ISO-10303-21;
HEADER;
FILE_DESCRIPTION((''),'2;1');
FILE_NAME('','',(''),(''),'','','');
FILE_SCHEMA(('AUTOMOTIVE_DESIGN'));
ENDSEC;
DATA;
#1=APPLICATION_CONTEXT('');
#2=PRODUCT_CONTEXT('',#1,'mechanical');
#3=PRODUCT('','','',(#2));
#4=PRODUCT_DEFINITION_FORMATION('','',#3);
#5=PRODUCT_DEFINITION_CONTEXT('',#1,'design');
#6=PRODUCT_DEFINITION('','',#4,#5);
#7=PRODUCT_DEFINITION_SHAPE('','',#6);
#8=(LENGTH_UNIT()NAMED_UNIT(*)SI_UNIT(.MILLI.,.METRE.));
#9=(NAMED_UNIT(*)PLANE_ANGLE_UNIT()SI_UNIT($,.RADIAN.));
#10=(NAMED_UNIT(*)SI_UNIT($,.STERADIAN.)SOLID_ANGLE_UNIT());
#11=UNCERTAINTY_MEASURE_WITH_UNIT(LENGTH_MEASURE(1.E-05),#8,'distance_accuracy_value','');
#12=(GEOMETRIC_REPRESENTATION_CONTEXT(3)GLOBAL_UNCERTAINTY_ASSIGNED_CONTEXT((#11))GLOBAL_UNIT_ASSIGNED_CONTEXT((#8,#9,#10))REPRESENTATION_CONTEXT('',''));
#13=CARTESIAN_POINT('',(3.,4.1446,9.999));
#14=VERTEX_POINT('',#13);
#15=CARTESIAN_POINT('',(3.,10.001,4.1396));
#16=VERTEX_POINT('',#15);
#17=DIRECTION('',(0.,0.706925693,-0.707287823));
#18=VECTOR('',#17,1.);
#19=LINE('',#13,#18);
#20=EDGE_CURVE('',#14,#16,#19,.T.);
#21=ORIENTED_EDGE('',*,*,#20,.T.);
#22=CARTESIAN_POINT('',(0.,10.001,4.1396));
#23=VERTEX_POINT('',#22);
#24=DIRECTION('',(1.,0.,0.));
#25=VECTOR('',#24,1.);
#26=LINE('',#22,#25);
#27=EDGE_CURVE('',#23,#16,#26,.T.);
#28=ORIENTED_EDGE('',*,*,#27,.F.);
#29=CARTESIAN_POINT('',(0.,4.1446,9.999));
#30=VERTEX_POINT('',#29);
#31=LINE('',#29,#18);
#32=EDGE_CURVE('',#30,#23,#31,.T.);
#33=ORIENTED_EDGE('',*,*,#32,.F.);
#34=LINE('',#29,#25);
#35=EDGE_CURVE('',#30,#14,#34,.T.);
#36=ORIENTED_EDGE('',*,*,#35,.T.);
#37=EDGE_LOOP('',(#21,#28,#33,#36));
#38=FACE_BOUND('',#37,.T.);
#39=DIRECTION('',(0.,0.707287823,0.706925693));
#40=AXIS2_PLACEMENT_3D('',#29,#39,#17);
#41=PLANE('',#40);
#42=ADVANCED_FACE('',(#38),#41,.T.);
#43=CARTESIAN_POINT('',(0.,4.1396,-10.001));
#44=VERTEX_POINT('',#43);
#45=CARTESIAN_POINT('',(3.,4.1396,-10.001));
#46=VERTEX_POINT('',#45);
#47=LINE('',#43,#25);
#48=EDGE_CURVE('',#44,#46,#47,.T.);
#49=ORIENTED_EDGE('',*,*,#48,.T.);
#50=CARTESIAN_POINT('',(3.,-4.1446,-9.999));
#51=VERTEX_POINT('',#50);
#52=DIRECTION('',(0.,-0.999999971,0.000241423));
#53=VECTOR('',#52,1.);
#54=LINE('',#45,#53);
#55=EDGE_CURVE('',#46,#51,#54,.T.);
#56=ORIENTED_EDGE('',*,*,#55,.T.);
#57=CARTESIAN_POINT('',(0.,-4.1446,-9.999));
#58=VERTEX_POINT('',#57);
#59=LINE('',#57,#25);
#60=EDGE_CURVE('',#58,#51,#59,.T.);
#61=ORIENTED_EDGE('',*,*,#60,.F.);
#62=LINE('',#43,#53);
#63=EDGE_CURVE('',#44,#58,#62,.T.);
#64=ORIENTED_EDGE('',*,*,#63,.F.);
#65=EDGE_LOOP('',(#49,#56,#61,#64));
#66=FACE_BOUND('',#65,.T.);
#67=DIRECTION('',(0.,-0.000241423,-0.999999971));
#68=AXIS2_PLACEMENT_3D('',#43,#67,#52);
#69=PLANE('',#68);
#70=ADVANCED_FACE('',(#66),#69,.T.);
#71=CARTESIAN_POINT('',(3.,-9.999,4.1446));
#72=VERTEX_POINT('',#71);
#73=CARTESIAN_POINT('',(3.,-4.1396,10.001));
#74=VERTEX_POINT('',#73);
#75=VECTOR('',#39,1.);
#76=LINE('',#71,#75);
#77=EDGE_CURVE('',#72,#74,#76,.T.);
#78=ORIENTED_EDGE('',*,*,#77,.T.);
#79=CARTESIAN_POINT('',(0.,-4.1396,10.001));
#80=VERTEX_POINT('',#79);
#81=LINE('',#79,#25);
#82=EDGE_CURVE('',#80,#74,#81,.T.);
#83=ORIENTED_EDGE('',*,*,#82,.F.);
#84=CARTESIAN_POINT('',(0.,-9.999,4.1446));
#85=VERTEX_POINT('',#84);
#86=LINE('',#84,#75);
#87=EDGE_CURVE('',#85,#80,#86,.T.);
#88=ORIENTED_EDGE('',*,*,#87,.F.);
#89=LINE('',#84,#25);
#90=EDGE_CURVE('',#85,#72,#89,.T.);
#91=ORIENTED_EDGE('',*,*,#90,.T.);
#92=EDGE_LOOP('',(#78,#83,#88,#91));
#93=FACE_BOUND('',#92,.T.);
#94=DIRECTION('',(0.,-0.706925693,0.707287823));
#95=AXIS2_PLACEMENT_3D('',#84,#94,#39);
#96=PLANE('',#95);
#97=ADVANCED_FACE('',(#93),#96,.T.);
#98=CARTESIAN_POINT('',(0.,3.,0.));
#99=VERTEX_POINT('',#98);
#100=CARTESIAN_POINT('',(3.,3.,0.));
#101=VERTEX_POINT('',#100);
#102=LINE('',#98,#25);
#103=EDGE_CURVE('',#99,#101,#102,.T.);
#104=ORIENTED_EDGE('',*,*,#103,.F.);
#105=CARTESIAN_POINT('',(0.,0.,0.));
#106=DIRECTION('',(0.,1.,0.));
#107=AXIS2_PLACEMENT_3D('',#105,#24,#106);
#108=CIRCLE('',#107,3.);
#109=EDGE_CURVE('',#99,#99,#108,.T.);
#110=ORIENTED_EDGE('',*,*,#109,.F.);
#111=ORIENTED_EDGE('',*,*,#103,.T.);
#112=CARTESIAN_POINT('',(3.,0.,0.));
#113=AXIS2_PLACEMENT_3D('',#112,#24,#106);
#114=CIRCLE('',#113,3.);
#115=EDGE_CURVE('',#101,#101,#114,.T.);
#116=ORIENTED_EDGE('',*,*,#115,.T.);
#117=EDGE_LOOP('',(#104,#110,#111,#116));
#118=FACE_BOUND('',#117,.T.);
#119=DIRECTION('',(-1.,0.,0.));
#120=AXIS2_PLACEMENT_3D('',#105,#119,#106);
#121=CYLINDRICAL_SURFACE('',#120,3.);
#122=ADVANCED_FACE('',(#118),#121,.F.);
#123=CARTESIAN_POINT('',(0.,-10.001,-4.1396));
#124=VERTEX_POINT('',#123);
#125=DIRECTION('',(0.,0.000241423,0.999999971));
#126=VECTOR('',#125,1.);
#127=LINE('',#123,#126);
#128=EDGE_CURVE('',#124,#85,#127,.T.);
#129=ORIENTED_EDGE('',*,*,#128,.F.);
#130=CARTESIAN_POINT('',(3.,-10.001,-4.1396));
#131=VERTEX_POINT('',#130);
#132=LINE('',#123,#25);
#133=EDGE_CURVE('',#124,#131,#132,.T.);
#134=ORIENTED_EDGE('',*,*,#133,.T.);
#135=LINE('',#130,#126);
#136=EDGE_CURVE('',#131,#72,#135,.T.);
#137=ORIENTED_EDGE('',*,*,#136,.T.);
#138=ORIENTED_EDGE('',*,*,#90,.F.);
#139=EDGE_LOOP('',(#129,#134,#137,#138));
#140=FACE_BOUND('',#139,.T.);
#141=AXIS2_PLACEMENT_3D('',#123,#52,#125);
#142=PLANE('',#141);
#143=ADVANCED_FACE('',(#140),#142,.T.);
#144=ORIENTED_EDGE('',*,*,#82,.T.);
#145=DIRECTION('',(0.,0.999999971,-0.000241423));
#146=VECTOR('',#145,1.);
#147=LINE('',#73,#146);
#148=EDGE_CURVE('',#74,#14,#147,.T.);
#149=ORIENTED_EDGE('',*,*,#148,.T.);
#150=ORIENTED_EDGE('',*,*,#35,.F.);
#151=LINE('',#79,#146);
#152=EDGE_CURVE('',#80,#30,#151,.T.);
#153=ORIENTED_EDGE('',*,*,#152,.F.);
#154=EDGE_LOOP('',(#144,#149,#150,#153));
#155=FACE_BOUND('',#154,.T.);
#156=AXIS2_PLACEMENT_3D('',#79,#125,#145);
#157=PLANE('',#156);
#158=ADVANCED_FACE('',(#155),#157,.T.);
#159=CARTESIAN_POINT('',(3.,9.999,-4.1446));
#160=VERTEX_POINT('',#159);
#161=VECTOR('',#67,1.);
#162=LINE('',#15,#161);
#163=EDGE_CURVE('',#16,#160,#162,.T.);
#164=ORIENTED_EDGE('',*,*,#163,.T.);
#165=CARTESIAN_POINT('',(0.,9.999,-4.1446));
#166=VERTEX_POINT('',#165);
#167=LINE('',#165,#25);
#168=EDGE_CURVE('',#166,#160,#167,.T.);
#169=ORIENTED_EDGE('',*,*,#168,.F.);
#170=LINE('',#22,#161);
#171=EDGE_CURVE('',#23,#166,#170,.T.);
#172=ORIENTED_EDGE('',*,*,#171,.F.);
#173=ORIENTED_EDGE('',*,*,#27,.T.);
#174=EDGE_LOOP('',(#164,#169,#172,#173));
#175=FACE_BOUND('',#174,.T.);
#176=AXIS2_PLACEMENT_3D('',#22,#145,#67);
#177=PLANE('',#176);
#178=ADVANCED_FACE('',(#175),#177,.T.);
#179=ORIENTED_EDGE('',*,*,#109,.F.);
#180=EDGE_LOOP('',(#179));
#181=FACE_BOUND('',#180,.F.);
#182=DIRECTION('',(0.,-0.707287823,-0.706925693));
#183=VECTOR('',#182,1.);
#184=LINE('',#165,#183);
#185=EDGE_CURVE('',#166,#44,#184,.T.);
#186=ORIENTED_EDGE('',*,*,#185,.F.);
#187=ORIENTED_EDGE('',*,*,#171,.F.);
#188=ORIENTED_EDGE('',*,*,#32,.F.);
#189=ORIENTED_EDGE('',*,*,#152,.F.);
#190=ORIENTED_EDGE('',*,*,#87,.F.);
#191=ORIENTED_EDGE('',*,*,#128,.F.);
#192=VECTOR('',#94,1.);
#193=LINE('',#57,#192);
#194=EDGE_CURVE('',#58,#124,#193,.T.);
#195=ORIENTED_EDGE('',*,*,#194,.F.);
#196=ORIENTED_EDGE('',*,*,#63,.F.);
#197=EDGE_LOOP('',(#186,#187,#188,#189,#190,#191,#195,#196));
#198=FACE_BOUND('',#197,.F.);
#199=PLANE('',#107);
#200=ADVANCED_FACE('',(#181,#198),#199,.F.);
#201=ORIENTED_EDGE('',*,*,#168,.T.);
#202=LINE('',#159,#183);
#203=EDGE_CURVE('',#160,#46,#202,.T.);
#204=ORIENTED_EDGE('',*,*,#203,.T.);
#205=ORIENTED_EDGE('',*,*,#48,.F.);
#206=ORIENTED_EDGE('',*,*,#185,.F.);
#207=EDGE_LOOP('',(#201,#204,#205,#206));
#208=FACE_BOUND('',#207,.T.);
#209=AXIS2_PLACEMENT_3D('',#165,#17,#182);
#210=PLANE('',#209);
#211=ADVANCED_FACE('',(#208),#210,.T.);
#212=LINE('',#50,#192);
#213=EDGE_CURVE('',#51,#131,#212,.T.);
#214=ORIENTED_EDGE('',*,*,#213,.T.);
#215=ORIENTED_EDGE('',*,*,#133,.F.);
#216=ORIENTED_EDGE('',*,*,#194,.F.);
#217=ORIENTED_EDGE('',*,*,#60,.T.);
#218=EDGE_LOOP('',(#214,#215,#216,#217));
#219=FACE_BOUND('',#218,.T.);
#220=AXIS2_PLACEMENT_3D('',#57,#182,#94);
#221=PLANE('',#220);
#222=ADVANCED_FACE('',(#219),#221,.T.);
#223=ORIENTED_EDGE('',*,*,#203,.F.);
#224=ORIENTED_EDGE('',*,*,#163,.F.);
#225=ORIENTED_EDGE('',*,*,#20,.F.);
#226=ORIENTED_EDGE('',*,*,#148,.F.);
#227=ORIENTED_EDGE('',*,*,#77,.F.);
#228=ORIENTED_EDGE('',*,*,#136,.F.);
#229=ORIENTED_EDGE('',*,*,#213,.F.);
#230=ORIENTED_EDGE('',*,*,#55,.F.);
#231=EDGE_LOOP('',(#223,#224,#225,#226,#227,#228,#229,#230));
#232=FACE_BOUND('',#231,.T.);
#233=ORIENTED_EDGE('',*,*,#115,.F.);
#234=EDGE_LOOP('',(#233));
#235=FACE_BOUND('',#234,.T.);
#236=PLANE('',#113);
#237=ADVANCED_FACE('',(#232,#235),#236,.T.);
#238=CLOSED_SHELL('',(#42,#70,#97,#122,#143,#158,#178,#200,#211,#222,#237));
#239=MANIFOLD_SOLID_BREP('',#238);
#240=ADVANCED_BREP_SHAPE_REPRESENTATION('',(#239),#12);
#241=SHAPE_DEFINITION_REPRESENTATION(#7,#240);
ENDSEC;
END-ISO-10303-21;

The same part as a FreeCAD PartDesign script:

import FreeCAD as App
import Part
import Sketcher
Q = App.Units.Quantity


def add_polygon(sketch, points):
    """Adds a closed chain of lines whose ends are joined by coincident constraints."""
    first, n = sketch.GeometryCount, len(points)
    for a, b in zip(points, points[1:] + points[:1]):
        sketch.addGeometry(Part.LineSegment(App.Vector(*a, 0), App.Vector(*b, 0)), False)
    for i in range(n):
        sketch.addConstraint(Sketcher.Constraint("Coincident", first + i, 2, first + (i + 1) % n, 1))

doc = App.newDocument("Part")
body = doc.addObject("PartDesign::Body", "Body")

sketch1 = body.newObject("Sketcher::SketchObject", "Sketch")
sketch1.AttachmentSupport = (doc.getObject("YZ_Plane"), [""])
sketch1.MapMode = "FlatFace"
add_polygon(sketch1, [(4.1446, 9.999), (-4.1396, 10.001), (-9.999, 4.1446), (-10.001, -4.1396), (-4.1446, -9.999), (4.1396, -10.001), (9.999, -4.1446), (10.001, 4.1396)])
sketch1.addGeometry(Part.Circle(App.Vector(0, 0, 0), App.Vector(0, 0, 1), 3), False)
sketch1.addConstraint(Sketcher.Constraint("Coincident", 8, 3, -1, 1))
sketch1.addConstraint(Sketcher.Constraint("Symmetric", 0, 2, 4, 2, -1, 1))
sketch1.addConstraint(Sketcher.Constraint("Symmetric", 1, 2, 5, 2, -1, 1))
sketch1.addConstraint(Sketcher.Constraint("Symmetric", 2, 2, 6, 2, -1, 1))
sketch1.addConstraint(Sketcher.Constraint("Symmetric", 3, 2, 7, 2, -1, 1))
sketch1.addConstraint(Sketcher.Constraint("Perpendicular", 0, 2))
sketch1.addConstraint(Sketcher.Constraint("Perpendicular", 1, 3))
sketch1.addConstraint(Sketcher.Constraint("Equal", 0, 1))
sketch1.addConstraint(Sketcher.Constraint("Equal", 1, 2))
sketch1.addConstraint(Sketcher.Constraint("Equal", 2, 3))
sketch1.addConstraint(Sketcher.Constraint("Diameter", 8, Q("6 mm")))
sketch1.addConstraint(Sketcher.Constraint("DistanceY", 3, 2, 0, 2, Q("20 mm")))
sketch1.addConstraint(Sketcher.Constraint("DistanceY", -1, 1, 0, 2, Q("10.001 mm")))
sketch1.addConstraint(Sketcher.Constraint("DistanceX", 3, 2, 0, 2, Q("0.005 mm")))
pad1 = body.newObject("PartDesign::Pad", "Pad")
pad1.Profile = sketch1
pad1.Length = 3

doc.recompute()
